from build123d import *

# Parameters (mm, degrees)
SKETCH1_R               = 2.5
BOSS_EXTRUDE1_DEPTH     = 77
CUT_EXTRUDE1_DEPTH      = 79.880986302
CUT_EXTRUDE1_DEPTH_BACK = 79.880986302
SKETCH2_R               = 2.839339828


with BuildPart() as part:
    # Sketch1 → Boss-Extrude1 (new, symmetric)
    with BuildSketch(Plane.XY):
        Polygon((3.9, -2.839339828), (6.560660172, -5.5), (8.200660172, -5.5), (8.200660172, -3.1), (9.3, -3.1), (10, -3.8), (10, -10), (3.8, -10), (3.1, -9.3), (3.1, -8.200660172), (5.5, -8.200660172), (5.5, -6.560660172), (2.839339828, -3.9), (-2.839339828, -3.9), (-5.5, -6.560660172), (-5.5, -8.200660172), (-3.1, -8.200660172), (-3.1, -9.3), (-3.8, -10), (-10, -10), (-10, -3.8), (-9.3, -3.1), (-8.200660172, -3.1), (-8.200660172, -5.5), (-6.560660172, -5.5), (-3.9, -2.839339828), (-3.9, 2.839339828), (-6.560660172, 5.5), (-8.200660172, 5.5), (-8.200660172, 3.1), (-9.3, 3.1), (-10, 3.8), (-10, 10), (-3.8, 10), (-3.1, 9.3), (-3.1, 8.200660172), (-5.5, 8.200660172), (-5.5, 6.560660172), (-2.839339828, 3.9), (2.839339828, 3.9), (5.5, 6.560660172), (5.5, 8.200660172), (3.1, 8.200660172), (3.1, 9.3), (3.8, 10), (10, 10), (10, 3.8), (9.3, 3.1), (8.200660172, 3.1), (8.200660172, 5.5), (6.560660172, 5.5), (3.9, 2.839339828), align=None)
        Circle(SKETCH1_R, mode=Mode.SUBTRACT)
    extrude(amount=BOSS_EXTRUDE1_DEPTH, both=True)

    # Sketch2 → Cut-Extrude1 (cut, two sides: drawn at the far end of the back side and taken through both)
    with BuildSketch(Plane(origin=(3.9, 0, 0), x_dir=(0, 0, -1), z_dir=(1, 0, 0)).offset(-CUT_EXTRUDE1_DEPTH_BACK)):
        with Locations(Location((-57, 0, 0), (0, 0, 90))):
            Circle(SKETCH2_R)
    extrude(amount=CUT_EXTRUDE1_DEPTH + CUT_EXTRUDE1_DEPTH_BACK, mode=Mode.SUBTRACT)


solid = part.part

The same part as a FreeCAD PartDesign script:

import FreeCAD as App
import Part
import Sketcher


def add_polygon(sketch, points):
    """Adds a closed chain of lines whose ends are joined by coincident constraints."""
    first, n = sketch.GeometryCount, len(points)
    for a, b in zip(points, points[1:] + points[:1]):
        sketch.addGeometry(Part.LineSegment(App.Vector(*a, 0), App.Vector(*b, 0)), False)
    for i in range(n):
        sketch.addConstraint(Sketcher.Constraint("Coincident", first + i, 2, first + (i + 1) % n, 1))

doc = App.newDocument("Part")
body = doc.addObject("PartDesign::Body", "Body")

sketch1 = body.newObject("Sketcher::SketchObject", "Sketch")
sketch1.AttachmentSupport = (doc.getObject("XY_Plane"), [""])
sketch1.MapMode = "FlatFace"
add_polygon(sketch1, [(6.6, -5.5), (3.9, -2.8), (3.9, 2.8), (6.6, 5.5), (8.2, 5.5), (8.2, 3.1), (9.3, 3.1), (10, 3.8), (10, 10), (3.8, 10), (3.1, 9.3), (3.1, 8.2), (5.5, 8.2), (5.5, 6.6), (2.8, 3.9), (-2.8, 3.9), (-5.5, 6.6), (-5.5, 8.2), (-3.1, 8.2), (-3.1, 9.3), (-3.8, 10), (-10, 10), (-10, 3.8), (-9.3, 3.1), (-8.2, 3.1), (-8.2, 5.5), (-6.6, 5.5), (-3.9, 2.8), (-3.9, -2.8), (-6.6, -5.5), (-8.2, -5.5), (-8.2, -3.1), (-9.3, -3.1), (-10, -3.8), (-10, -10), (-3.8, -10), (-3.1, -9.3), (-3.1, -8.2), (-5.5, -8.2), (-5.5, -6.6), (-2.8, -3.9), (2.8, -3.9), (5.5, -6.6), (5.5, -8.2), (3.1, -8.2), (3.1, -9.3), (3.8, -10), (10, -10), (10, -3.8), (9.3, -3.1), (8.2, -3.1), (8.2, -5.5)])
sketch1.addGeometry(Part.Circle(App.Vector(0, 0, 0), App.Vector(0, 0, 1), 2.5), False)
sketch1.addConstraint([
    Sketcher.Constraint("Vertical", 1),
    Sketcher.Constraint("Horizontal", 3),
    Sketcher.Constraint("Vertical", 4),
    Sketcher.Constraint("Horizontal", 5),
    Sketcher.Constraint("Vertical", 7),
    Sketcher.Constraint("Horizontal", 8),
    Sketcher.Constraint("Vertical", 10),
    Sketcher.Constraint("Horizontal", 11),
    Sketcher.Constraint("Vertical", 12),
    Sketcher.Constraint("Horizontal", 14),
    Sketcher.Constraint("Vertical", 16),
    Sketcher.Constraint("Horizontal", 17),
    Sketcher.Constraint("Vertical", 18),
    Sketcher.Constraint("Horizontal", 20),
    Sketcher.Constraint("Vertical", 21),
    Sketcher.Constraint("Horizontal", 23),
    Sketcher.Constraint("Vertical", 24),
    Sketcher.Constraint("Horizontal", 25),
    Sketcher.Constraint("Vertical", 27),
    Sketcher.Constraint("Horizontal", 29),
    Sketcher.Constraint("Vertical", 30),
    Sketcher.Constraint("Horizontal", 31),
    Sketcher.Constraint("Vertical", 33),
    Sketcher.Constraint("Horizontal", 34),
    Sketcher.Constraint("Vertical", 36),
    Sketcher.Constraint("Horizontal", 37),
    Sketcher.Constraint("Vertical", 38),
    Sketcher.Constraint("Horizontal", 40),
    Sketcher.Constraint("Vertical", 42),
    Sketcher.Constraint("Horizontal", 43),
    Sketcher.Constraint("Vertical", 44),
    Sketcher.Constraint("Horizontal", 46),
    Sketcher.Constraint("Vertical", 47),
    Sketcher.Constraint("Horizontal", 49),
    Sketcher.Constraint("Vertical", 50),
    Sketcher.Constraint("Horizontal", 51),
    Sketcher.Constraint("Coincident", 52, 3, -1, 1),
    Sketcher.Constraint("Symmetric", 0, 2, 26, 2, -1, 1),
    Sketcher.Constraint("Symmetric", 2, 2, 28, 2, -1, 1),
    Sketcher.Constraint("Symmetric", 4, 2, 30, 2, -1, 1),
    Sketcher.Constraint("Symmetric", 6, 2, 32, 2, -1, 1),
    Sketcher.Constraint("Symmetric", 8, 2, 34, 2, -1, 1),
    Sketcher.Constraint("Symmetric", 9, 2, 35, 2, -1, 1),
    Sketcher.Constraint("Symmetric", 11, 2, 37, 2, -1, 1),
    Sketcher.Constraint("Symmetric", 13, 2, 39, 2, -1, 1),
    Sketcher.Constraint("Symmetric", 15, 2, 41, 2, -1, 1),
    Sketcher.Constraint("Symmetric", 17, 2, 43, 2, -1, 1),
    Sketcher.Constraint("Symmetric", 19, 2, 45, 2, -1, 1),
    Sketcher.Constraint("Symmetric", 21, 2, 47, 2, -1, 1),
    Sketcher.Constraint("Symmetric", 22, 2, 48, 2, -1, 1),
    Sketcher.Constraint("Symmetric", 24, 2, 50, 2, -1, 1),
    Sketcher.Constraint("Symmetric", 12, 2, 15, 2, -2),
    Sketcher.Constraint("Symmetric", 10, 2, 17, 2, -2),
    Sketcher.Constraint("Symmetric", 8, 2, 19, 2, -2),
    Sketcher.Constraint("Symmetric", 6, 2, 21, 2, -2),
    Sketcher.Constraint("Symmetric", 5, 2, 22, 2, -2),
    Sketcher.Constraint("Symmetric", 3, 2, 24, 2, -2),
    Sketcher.Constraint("Perpendicular", 0, 2),
    Sketcher.Constraint("Parallel", 2, 6),
    Sketcher.Constraint("Parallel", 6, 9),
    Sketcher.Constraint("Parallel", 9, 13),
    Sketcher.Constraint("Perpendicular", 13, 15),
    Sketcher.Constraint("Parallel", 15, 19),
    Sketcher.Constraint("Parallel", 19, 22),
    Sketcher.Constraint("Parallel", 22, 26),
    Sketcher.Constraint("Perpendicular", 26, 28),
    Sketcher.Constraint("Parallel", 28, 32),
    Sketcher.Constraint("Parallel", 35, 39),
    Sketcher.Constraint("Perpendicular", 39, 41),
    Sketcher.Constraint("Parallel", 41, 45),
    Sketcher.Constraint("Horizontal", 1, 2, 26, 2),
    Sketcher.Constraint("Equal", 40, 1),
    Sketcher.Constraint("Equal", 43, 4),
    Sketcher.Constraint("Equal", 46, 7),
    Sketcher.Constraint("Equal", 49, 10),
    Sketcher.Constraint("Equal", 51, 12),
    Sketcher.Constraint("Equal", 6, 9),
    Sketcher.Constraint("Equal", 2, 13),
    Sketcher.Constraint("Diameter", 52, 5.0),
    Sketcher.Constraint("DistanceX", 8, 2, 8, 1, 6.2),
    Sketcher.Constraint("DistanceX", 11, 1, 11, 2, 2.4),
    Sketcher.Constraint("DistanceX", -1, 1, 6, 2, 10.0),
    Sketcher.Constraint("DistanceX", 3, 1, 3, 2, 1.64),
    Sketcher.Constraint("DistanceX", -1, 1, 0, 2, 3.9),
    Sketcher.Constraint("DistanceY", -1, 1, 2, 2, 5.5),
    Sketcher.Constraint("DistanceX", 5, 1, 5, 2, 1.09934),
])
pad1 = body.newObject("PartDesign::Pad", "Pad")
pad1.Profile = sketch1
pad1.Length = 154
pad1.Midplane = True

sketch2 = body.newObject("Sketcher::SketchObject", "Sketch001")
sketch2.AttachmentSupport = (doc.getObject("YZ_Plane"), [""])
sketch2.MapMode = "FlatFace"
sketch2.AttachmentOffset = App.Placement(App.Vector(0, 0, 3.9), App.Rotation())
sketch2.addGeometry(Part.Circle(App.Vector(0, 57, 0), App.Vector(0, 0, 1), 2.8), False)
sketch2.addConstraint([
    Sketcher.Constraint("PointOnObject", 0, 3, -2),
    Sketcher.Constraint("DistanceY", -1, 1, 0, 3, 57.0),
    Sketcher.Constraint("Diameter", 0, 5.67868),
])
pocket1 = body.newObject("PartDesign::Pocket", "Pocket")
pocket1.Profile = sketch2
pocket1.Type = "ThroughAll"
pocket1.Midplane = True

doc.recompute()
